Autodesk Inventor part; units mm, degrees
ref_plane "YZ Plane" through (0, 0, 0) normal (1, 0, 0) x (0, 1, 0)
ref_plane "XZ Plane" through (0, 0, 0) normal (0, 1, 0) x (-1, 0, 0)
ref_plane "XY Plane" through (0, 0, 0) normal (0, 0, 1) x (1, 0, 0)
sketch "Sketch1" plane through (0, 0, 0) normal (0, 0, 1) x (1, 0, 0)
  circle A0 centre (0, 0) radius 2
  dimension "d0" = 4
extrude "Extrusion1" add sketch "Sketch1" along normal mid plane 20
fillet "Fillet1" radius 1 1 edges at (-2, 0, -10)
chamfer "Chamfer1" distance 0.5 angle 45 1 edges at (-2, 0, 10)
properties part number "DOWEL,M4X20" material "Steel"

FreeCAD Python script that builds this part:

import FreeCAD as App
import Part
import Sketcher
Q = App.Units.Quantity


def edges_at(feature, points):
    """Names of the edges that pass closest to the given points."""
    edges = feature.Shape.Edges
    near = lambda p: min(range(len(edges)), key=lambda i: edges[i].distToShape(Part.Vertex(*p))[0])
    return sorted({f"Edge{near(p) + 1}" for p in points})

doc = App.newDocument("Part")
body = doc.addObject("PartDesign::Body", "Body")

sketch1 = doc.addObject("Sketcher::SketchObject", "Sketch")
body.addObject(sketch1)
sketch1.AttachmentSupport = (doc.XY_Plane, [""])
sketch1.MapMode = "FlatFace"
sketch1.addGeometry(Part.Circle(App.Vector(0, 0, 0), App.Vector(0, 0, 1), 2), False)
sketch1.addConstraint(Sketcher.Constraint("Coincident", 0, 3, -1, 1))
sketch1.addConstraint(Sketcher.Constraint("Diameter", 0, Q("4 mm")))
pad1 = doc.addObject("PartDesign::Pad", "Pad")
body.addObject(pad1)
pad1.Profile = sketch1
pad1.Length = 20
pad1.Midplane = True
doc.recompute()

fillet = doc.addObject("PartDesign::Fillet", "Fillet")
body.addObject(fillet)
fillet.Base = (pad1, edges_at(pad1, [(-2, 0, -10)]))
fillet.Radius = 1
doc.recompute()

chamfer = doc.addObject("PartDesign::Chamfer", "Chamfer")
body.addObject(chamfer)
chamfer.Base = (fillet, edges_at(fillet, [(-2, 0, 10)]))
chamfer.Size = 0.5

doc.recompute()
